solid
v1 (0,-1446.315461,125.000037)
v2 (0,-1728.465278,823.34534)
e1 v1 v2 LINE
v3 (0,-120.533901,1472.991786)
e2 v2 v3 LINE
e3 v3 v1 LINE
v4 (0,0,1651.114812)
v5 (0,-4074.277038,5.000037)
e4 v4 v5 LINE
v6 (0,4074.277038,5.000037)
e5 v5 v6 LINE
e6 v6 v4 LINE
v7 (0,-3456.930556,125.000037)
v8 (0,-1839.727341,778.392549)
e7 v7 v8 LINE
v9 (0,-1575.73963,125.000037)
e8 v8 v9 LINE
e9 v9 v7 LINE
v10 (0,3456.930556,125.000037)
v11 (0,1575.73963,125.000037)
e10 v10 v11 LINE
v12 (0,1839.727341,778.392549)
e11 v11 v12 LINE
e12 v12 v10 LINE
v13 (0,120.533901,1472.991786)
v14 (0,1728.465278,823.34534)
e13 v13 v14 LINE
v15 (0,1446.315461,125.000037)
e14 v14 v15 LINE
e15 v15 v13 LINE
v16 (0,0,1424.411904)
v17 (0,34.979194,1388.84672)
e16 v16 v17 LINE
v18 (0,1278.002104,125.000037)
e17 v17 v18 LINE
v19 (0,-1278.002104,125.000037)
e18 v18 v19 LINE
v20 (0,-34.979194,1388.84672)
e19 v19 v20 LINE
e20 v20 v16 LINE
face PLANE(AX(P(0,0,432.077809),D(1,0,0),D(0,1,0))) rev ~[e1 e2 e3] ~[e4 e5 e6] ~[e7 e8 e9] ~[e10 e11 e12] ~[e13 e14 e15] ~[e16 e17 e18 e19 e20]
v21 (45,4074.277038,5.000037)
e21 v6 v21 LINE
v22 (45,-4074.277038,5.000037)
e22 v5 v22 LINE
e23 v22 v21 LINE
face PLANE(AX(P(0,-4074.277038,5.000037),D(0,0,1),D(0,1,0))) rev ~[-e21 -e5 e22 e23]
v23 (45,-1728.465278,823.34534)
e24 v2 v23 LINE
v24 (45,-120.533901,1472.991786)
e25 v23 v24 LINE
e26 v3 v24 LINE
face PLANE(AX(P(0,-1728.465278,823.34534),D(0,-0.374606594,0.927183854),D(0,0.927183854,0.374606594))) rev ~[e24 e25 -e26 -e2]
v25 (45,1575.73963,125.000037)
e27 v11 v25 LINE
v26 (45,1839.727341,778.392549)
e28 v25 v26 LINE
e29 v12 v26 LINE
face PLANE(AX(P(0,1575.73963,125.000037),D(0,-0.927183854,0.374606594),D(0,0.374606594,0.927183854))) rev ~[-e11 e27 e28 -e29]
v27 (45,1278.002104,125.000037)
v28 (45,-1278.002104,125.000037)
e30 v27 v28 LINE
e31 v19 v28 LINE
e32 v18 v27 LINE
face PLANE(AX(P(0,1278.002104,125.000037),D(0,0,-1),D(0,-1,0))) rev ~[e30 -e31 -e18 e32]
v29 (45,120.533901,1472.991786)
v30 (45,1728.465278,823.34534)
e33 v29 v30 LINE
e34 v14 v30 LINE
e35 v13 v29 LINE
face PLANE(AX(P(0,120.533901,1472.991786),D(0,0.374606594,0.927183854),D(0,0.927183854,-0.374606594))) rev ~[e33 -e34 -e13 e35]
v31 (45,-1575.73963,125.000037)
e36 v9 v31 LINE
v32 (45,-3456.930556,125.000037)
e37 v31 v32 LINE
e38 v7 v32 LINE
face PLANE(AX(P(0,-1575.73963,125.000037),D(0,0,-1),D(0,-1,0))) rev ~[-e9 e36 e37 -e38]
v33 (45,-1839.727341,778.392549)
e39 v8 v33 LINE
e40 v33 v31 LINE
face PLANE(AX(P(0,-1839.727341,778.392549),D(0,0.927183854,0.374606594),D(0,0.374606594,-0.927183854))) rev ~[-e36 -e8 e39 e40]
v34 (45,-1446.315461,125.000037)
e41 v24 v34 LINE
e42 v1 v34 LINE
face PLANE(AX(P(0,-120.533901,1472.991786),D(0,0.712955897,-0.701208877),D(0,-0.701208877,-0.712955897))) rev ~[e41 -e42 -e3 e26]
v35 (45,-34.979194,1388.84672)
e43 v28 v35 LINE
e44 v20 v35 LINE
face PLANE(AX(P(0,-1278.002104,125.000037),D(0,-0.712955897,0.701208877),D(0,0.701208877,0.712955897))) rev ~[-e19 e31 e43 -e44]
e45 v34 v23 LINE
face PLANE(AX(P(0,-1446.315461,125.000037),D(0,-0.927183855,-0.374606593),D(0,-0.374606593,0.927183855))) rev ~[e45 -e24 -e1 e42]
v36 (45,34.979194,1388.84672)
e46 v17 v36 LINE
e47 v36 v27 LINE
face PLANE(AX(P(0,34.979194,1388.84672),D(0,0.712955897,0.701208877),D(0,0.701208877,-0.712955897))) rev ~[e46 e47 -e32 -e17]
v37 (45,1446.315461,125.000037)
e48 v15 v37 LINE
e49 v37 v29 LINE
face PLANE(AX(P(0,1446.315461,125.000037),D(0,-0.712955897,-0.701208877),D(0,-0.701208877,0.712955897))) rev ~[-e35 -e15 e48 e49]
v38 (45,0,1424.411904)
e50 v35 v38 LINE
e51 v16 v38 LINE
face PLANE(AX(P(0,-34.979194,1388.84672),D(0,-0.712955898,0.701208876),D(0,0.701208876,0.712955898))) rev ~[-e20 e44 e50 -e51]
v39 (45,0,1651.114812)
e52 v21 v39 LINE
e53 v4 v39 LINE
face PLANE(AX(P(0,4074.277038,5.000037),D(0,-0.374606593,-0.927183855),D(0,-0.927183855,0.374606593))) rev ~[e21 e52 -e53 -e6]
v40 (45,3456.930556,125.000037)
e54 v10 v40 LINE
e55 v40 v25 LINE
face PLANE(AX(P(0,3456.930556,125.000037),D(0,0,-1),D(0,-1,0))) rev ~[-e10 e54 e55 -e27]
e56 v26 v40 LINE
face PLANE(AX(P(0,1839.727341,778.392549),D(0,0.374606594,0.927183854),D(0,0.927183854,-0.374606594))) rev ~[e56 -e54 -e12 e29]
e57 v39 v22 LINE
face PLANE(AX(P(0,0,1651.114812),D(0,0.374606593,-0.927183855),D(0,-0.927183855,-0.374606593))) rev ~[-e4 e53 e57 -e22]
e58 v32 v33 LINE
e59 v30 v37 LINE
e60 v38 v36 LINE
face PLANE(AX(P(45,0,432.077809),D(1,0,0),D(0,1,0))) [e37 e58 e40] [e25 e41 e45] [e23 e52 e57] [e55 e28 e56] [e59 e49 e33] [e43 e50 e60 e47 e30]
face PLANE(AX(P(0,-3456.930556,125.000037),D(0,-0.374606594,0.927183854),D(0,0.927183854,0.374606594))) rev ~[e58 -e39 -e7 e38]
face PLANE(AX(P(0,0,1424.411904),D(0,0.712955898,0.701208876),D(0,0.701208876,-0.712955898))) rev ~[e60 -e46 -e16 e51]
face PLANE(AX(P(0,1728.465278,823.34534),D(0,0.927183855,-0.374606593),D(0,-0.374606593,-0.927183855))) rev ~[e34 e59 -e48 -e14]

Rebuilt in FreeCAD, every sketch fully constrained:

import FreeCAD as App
import Part
import Sketcher
from FreeCAD import Vector
Q = App.Units.Quantity

doc = App.newDocument("Part")
params = doc.addObject("Spreadsheet::Sheet", "Params")
for row, (alias, value) in enumerate([
    ("pad1_length", "45 mm"),
], start=1):
    params.set(f"A{row}", alias)
    params.set(f"B{row}", "=" + value)
    params.setAlias(f"B{row}", alias)

body = doc.addObject("PartDesign::Body", "Body")

# Sketch on YZ plane
sketch1 = body.newObject("Sketcher::SketchObject", "Sketch")
sketch1.AttachmentSupport = (doc.getObject("YZ_Plane"), [""])
sketch1.MapMode = "FlatFace"
sketch1.addGeometry(Part.LineSegment(Vector(4074.277038, 5.000037, 0), Vector(0, 1651.114812, 0)), False)
sketch1.addGeometry(Part.LineSegment(Vector(0, 1651.114812, 0), Vector(-4074.277038, 5.000037, 0)), False)
sketch1.addGeometry(Part.LineSegment(Vector(-4074.277038, 5.000037, 0), Vector(4074.277038, 5.000037, 0)), False)
sketch1.addGeometry(Part.LineSegment(Vector(-1728.465278, 823.34534, 0), Vector(-120.533901, 1472.991786, 0)), False)
sketch1.addGeometry(Part.LineSegment(Vector(-120.533901, 1472.991786, 0), Vector(-1446.315461, 125.000037, 0)), False)
sketch1.addGeometry(Part.LineSegment(Vector(-1446.315461, 125.000037, 0), Vector(-1728.465278, 823.34534, 0)), False)
sketch1.addGeometry(Part.LineSegment(Vector(120.533901, 1472.991786, 0), Vector(1728.465278, 823.34534, 0)), False)
sketch1.addGeometry(Part.LineSegment(Vector(1728.465278, 823.34534, 0), Vector(1446.315461, 125.000037, 0)), False)
sketch1.addGeometry(Part.LineSegment(Vector(1446.315461, 125.000037, 0), Vector(120.533901, 1472.991786, 0)), False)
sketch1.addGeometry(Part.LineSegment(Vector(1839.727341, 778.392549, 0), Vector(3456.930556, 125.000037, 0)), False)
sketch1.addGeometry(Part.LineSegment(Vector(3456.930556, 125.000037, 0), Vector(1575.73963, 125.000037, 0)), False)
sketch1.addGeometry(Part.LineSegment(Vector(1575.73963, 125.000037, 0), Vector(1839.727341, 778.392549, 0)), False)
sketch1.addGeometry(Part.LineSegment(Vector(1278.002104, 125.000037, 0), Vector(-1278.002104, 125.000037, 0)), False)
sketch1.addGeometry(Part.LineSegment(Vector(-1278.002104, 125.000037, 0), Vector(-34.979194, 1388.84672, 0)), False)
sketch1.addGeometry(Part.LineSegment(Vector(-34.979194, 1388.84672, 0), Vector(0, 1424.411904, 0)), False)
sketch1.addGeometry(Part.LineSegment(Vector(0, 1424.411904, 0), Vector(34.979194, 1388.84672, 0)), False)
sketch1.addGeometry(Part.LineSegment(Vector(34.979194, 1388.84672, 0), Vector(1278.002104, 125.000037, 0)), False)
sketch1.addGeometry(Part.LineSegment(Vector(-1575.73963, 125.000037, 0), Vector(-3456.930556, 125.000037, 0)), False)
sketch1.addGeometry(Part.LineSegment(Vector(-3456.930556, 125.000037, 0), Vector(-1839.727341, 778.392549, 0)), False)
sketch1.addGeometry(Part.LineSegment(Vector(-1839.727341, 778.392549, 0), Vector(-1575.73963, 125.000037, 0)), False)
sketch1.addConstraint(Sketcher.Constraint("Coincident", 0, 2, 1, 1))
sketch1.addConstraint(Sketcher.Constraint("Coincident", 1, 2, 2, 1))
sketch1.addConstraint(Sketcher.Constraint("Coincident", 2, 2, 0, 1))
sketch1.addConstraint(Sketcher.Constraint("Coincident", 3, 2, 4, 1))
sketch1.addConstraint(Sketcher.Constraint("Coincident", 4, 2, 5, 1))
sketch1.addConstraint(Sketcher.Constraint("Coincident", 5, 2, 3, 1))
sketch1.addConstraint(Sketcher.Constraint("Coincident", 6, 2, 7, 1))
sketch1.addConstraint(Sketcher.Constraint("Coincident", 7, 2, 8, 1))
sketch1.addConstraint(Sketcher.Constraint("Coincident", 8, 2, 6, 1))
sketch1.addConstraint(Sketcher.Constraint("Coincident", 9, 2, 10, 1))
sketch1.addConstraint(Sketcher.Constraint("Coincident", 10, 2, 11, 1))
sketch1.addConstraint(Sketcher.Constraint("Coincident", 11, 2, 9, 1))
sketch1.addConstraint(Sketcher.Constraint("Coincident", 12, 2, 13, 1))
sketch1.addConstraint(Sketcher.Constraint("Coincident", 13, 2, 14, 1))
sketch1.addConstraint(Sketcher.Constraint("Coincident", 14, 2, 15, 1))
sketch1.addConstraint(Sketcher.Constraint("Coincident", 15, 2, 16, 1))
sketch1.addConstraint(Sketcher.Constraint("Coincident", 16, 2, 12, 1))
sketch1.addConstraint(Sketcher.Constraint("Coincident", 17, 2, 18, 1))
sketch1.addConstraint(Sketcher.Constraint("Coincident", 18, 2, 19, 1))
sketch1.addConstraint(Sketcher.Constraint("Coincident", 19, 2, 17, 1))
sketch1.addConstraint(Sketcher.Constraint("Horizontal", 2))
sketch1.addConstraint(Sketcher.Constraint("Horizontal", 10))
sketch1.addConstraint(Sketcher.Constraint("Horizontal", 12))
sketch1.addConstraint(Sketcher.Constraint("Horizontal", 17))
sketch1.addConstraint(Sketcher.Constraint("Symmetric", 5, 2, 6, 2, -2))
sketch1.addConstraint(Sketcher.Constraint("Symmetric", 4, 2, 7, 2, -2))
sketch1.addConstraint(Sketcher.Constraint("Symmetric", 3, 2, 8, 2, -2))
sketch1.addConstraint(Sketcher.Constraint("Symmetric", 13, 2, 15, 2, -2))
sketch1.addConstraint(Sketcher.Constraint("Symmetric", 9, 2, 17, 2, -2))
sketch1.addConstraint(Sketcher.Constraint("Symmetric", 11, 2, 18, 2, -2))
sketch1.addConstraint(Sketcher.Constraint("PointOnObject", 0, 2, -2))
sketch1.addConstraint(Sketcher.Constraint("PointOnObject", 14, 2, -2))
sketch1.addConstraint(Sketcher.Constraint("Parallel", 1, 3))
sketch1.addConstraint(Sketcher.Constraint("Perpendicular", 3, 5))
sketch1.addConstraint(Sketcher.Constraint("Parallel", 0, 6))
sketch1.addConstraint(Sketcher.Constraint("Perpendicular", 7, 9))
sketch1.addConstraint(Sketcher.Constraint("Perpendicular", 9, 11))
sketch1.addConstraint(Sketcher.Constraint("Parallel", 4, 13))
sketch1.addConstraint(Sketcher.Constraint("Parallel", 13, 14))
sketch1.addConstraint(Sketcher.Constraint("Parallel", 15, 16))
sketch1.addConstraint(Sketcher.Constraint("Perpendicular", 18, 19))
sketch1.addConstraint(Sketcher.Constraint("Horizontal", 7, 2, 9, 2))
sketch1.addConstraint(Sketcher.Constraint("Horizontal", 10, 2, 12, 2))
sketch1.addConstraint(Sketcher.Constraint("Angle", 0, Q("158 deg")))
sketch1.addConstraint(Sketcher.Constraint("DistanceY", 1, 2, 4, 2, 120.0))
sketch1.addConstraint(Sketcher.Constraint("DistanceX", 3, 2, -1, 1, 120.533901))
sketch1.addConstraint(Sketcher.Constraint("DistanceX", 4, 2, 2, 2, 5520.592499))
sketch1.addConstraint(Sketcher.Constraint("Distance", 5, 753.189672))
sketch1.addConstraint(Sketcher.Constraint("Distance", 14, 49.884129))
sketch1.addConstraint(Sketcher.Constraint("DistanceX", 2, 1, 2, 2, 8148.554076))
sketch1.addConstraint(Sketcher.Constraint("DistanceX", 10, 2, 10, 1, 1881.190926))
sketch1.addConstraint(Sketcher.Constraint("DistanceX", 12, 2, 12, 1, 2556.004208))
sketch1.addConstraint(Sketcher.Constraint("DistanceY", -1, 1, 0, 2, 1651.114812))
sketch1.addConstraint(Sketcher.Constraint("DistanceX", -1, 1, 10, 2, 1575.73963))
pad1 = body.newObject("PartDesign::Pad", "Pad")
pad1.Profile = sketch1
pad1.setExpression("Length", "Params.pad1_length")

doc.recompute()
